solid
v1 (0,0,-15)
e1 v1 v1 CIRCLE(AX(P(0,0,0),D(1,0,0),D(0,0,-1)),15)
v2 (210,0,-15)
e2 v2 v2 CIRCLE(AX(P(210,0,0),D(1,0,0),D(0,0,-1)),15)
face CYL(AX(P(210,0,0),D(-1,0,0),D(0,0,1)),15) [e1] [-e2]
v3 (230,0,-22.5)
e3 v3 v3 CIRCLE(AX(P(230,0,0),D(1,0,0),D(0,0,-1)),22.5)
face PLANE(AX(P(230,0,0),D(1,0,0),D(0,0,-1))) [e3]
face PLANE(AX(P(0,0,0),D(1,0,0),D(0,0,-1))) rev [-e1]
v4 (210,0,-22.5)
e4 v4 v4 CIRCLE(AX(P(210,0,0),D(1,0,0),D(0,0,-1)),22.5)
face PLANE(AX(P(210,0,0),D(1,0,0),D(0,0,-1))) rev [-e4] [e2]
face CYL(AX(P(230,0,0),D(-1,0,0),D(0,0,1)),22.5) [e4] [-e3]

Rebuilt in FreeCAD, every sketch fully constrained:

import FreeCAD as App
import Part
import Sketcher

doc = App.newDocument("Part")
params = doc.addObject("Spreadsheet::Sheet", "Params")
for row, (alias, value) in enumerate([
    ("sketch1_diameter", "30 mm"),
    ("pad1_length", "210 mm"),
    ("sketch2_diameter", "45 mm"),
    ("pad2_length", "20 mm"),
], start=1):
    params.set(f"A{row}", alias)
    params.set(f"B{row}", "=" + value)
    params.setAlias(f"B{row}", alias)

body = doc.addObject("PartDesign::Body", "Body")

# Sketch on YZ plane
sketch1 = body.newObject("Sketcher::SketchObject", "Sketch")
sketch1.AttachmentSupport = (doc.getObject("YZ_Plane"), [""])
sketch1.MapMode = "FlatFace"
sketch1.addGeometry(Part.Circle(App.Vector(0, 0, 0), App.Vector(0, 0, 1), 15), False)
sketch1.addConstraint([
    Sketcher.Constraint("Coincident", 0, 3, -1, 1),
    Sketcher.Constraint("Diameter", 0, 30.0),
])
sketch1.setExpression("Constraints[1]", "Params.sketch1_diameter")
pad1 = body.newObject("PartDesign::Pad", "Pad")
pad1.Profile = sketch1
pad1.setExpression("Length", "Params.pad1_length")

# Sketch on YZ plane
sketch2 = body.newObject("Sketcher::SketchObject", "Sketch001")
sketch2.AttachmentSupport = (doc.getObject("YZ_Plane"), [""])
sketch2.MapMode = "FlatFace"
sketch2.AttachmentOffset = App.Placement(App.Vector(0, 0, 210), App.Rotation())
sketch2.addGeometry(Part.Circle(App.Vector(0, 0, 0), App.Vector(0, 0, 1), 22), False)
sketch2.addConstraint([
    Sketcher.Constraint("Coincident", 0, 3, -1, 1),
    Sketcher.Constraint("Diameter", 0, 45.0),
])
sketch2.setExpression("Constraints[1]", "Params.sketch2_diameter")
pad2 = body.newObject("PartDesign::Pad", "Pad001")
pad2.Profile = sketch2
pad2.setExpression("Length", "Params.pad2_length")

doc.recompute()
